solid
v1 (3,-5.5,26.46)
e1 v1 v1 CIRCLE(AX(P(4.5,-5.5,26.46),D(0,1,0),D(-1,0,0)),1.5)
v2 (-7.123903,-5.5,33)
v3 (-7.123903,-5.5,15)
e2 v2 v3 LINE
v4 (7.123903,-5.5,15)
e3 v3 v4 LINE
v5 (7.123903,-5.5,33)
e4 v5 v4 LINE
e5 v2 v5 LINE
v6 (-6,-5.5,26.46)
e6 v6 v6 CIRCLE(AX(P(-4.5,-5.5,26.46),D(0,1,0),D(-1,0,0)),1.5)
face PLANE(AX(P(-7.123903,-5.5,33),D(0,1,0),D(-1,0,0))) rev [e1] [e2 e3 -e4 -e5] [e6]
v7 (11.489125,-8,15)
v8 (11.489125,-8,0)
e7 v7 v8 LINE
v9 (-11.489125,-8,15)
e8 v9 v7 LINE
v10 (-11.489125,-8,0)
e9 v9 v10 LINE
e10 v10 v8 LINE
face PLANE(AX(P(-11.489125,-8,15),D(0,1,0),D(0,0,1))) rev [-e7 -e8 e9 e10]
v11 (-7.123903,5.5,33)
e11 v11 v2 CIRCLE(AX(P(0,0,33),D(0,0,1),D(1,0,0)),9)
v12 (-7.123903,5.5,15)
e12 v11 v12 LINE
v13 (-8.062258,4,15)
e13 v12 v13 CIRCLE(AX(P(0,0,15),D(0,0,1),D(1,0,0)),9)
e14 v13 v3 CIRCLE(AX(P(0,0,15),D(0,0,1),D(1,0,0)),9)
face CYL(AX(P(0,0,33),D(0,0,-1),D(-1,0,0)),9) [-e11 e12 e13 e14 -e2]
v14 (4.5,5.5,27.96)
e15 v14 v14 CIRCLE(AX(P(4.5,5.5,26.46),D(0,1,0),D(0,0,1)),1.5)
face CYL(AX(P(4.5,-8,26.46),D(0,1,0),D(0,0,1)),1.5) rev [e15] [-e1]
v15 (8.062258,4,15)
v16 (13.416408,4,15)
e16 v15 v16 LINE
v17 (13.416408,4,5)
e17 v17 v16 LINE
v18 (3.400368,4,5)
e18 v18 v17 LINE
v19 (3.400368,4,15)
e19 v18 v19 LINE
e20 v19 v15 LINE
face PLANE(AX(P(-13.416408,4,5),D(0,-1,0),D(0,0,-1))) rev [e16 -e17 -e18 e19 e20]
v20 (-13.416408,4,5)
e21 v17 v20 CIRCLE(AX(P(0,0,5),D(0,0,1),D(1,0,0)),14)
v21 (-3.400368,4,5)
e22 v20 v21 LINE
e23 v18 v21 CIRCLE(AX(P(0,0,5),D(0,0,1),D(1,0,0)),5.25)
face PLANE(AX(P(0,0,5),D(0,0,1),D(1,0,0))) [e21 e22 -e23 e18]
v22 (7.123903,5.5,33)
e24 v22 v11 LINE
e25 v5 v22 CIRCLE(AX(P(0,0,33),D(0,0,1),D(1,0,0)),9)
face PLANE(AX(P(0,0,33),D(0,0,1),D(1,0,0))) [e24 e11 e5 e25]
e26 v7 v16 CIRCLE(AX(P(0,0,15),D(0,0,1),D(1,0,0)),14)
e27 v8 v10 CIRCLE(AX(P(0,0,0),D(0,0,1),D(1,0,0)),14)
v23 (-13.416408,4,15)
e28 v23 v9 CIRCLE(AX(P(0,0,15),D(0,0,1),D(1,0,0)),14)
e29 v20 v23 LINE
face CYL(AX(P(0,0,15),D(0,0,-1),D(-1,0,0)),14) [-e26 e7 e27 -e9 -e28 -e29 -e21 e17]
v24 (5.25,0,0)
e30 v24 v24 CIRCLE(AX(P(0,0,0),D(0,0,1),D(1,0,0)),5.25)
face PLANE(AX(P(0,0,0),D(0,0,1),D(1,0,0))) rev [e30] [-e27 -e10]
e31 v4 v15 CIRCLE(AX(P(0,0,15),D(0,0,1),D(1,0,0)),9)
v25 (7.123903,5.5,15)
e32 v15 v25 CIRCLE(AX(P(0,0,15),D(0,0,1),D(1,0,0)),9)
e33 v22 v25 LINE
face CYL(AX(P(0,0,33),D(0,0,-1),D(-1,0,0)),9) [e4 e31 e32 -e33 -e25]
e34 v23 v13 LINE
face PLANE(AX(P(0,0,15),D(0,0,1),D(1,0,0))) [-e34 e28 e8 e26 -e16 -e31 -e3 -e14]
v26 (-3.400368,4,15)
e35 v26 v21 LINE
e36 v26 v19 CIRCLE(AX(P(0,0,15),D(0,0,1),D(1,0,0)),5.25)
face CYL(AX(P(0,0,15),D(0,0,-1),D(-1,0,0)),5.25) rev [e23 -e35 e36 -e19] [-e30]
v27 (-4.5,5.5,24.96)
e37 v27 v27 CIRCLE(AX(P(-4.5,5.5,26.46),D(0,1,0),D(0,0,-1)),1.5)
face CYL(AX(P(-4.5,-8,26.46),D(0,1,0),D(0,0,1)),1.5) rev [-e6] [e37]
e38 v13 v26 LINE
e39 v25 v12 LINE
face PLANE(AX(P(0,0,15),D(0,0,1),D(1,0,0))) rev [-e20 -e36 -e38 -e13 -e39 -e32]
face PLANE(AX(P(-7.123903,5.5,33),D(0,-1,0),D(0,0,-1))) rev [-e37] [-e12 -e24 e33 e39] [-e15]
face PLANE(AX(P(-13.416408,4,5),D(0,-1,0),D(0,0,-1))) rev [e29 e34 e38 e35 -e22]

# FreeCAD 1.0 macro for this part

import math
import FreeCAD as App
import Part
import Sketcher
Q = App.Units.Quantity

doc = App.newDocument("Part")
body = doc.addObject("PartDesign::Body", "Body")

# Sketch on XY plane
sketch1 = body.newObject("Sketcher::SketchObject", "Sketch")
sketch1.AttachmentSupport = (doc.getObject("XY_Plane"), [""])
sketch1.MapMode = "FlatFace"
sketch1.addGeometry(Part.LineSegment(App.Vector(-11, -8, 0), App.Vector(11, -8, 0)), False)
sketch1.addGeometry(Part.ArcOfCircle(Part.Circle(App.Vector(0, 0, 0), App.Vector(0, 0, 1), 14), math.radians(-35), math.radians(215)), False)
sketch1.addGeometry(Part.Circle(App.Vector(0, 0, 0), App.Vector(0, 0, 1), 5), False)
sketch1.addConstraint(Sketcher.Constraint("Coincident", 0, 1, 1, 2))
sketch1.addConstraint(Sketcher.Constraint("Coincident", 1, 1, 0, 2))
sketch1.addConstraint(Sketcher.Constraint("Horizontal", 0))
sketch1.addConstraint(Sketcher.Constraint("Coincident", 1, 3, -1, 1))
sketch1.addConstraint(Sketcher.Constraint("Coincident", 2, 3, -1, 1))
sketch1.addConstraint(Sketcher.Constraint("Radius", 1, Q("14 mm")))
sketch1.addConstraint(Sketcher.Constraint("Diameter", 2, Q("10.5 mm")))
sketch1.addConstraint(Sketcher.Constraint("DistanceY", 0, 1, -1, 1, Q("8 mm")))
pad1 = body.newObject("PartDesign::Pad", "Pad")
pad1.Profile = sketch1
pad1.Length = 15

# Sketch on XY plane
sketch2 = body.newObject("Sketcher::SketchObject", "Sketch001")
sketch2.AttachmentSupport = (doc.getObject("XY_Plane"), [""])
sketch2.MapMode = "FlatFace"
sketch2.AttachmentOffset = App.Placement(App.Vector(0, 0, 5), App.Rotation())
sketch2.addGeometry(Part.LineSegment(App.Vector(-13, 4, 0), App.Vector(13, 4, 0)), False)
sketch2.addGeometry(Part.ArcOfCircle(Part.Circle(App.Vector(0, 0, 0), App.Vector(0, 0, 1), 14), math.radians(17), math.radians(163)), False)
sketch2.addConstraint(Sketcher.Constraint("Coincident", 0, 1, 1, 2))
sketch2.addConstraint(Sketcher.Constraint("Coincident", 1, 1, 0, 2))
sketch2.addConstraint(Sketcher.Constraint("Horizontal", 0))
sketch2.addConstraint(Sketcher.Constraint("Coincident", 1, 3, -1, 1))
sketch2.addConstraint(Sketcher.Constraint("Radius", 1, Q("14 mm")))
sketch2.addConstraint(Sketcher.Constraint("DistanceY", -1, 1, 0, 1, Q("4 mm")))
pocket1 = body.newObject("PartDesign::Pocket", "Pocket")
pocket1.Profile = sketch2
pocket1.Length = 10
pocket1.Reversed = True

# Sketch on XY plane
sketch3 = body.newObject("Sketcher::SketchObject", "Sketch002")
sketch3.AttachmentSupport = (doc.getObject("XY_Plane"), [""])
sketch3.MapMode = "FlatFace"
sketch3.AttachmentOffset = App.Placement(App.Vector(0, 0, 15), App.Rotation())
sketch3.addGeometry(Part.LineSegment(App.Vector(7, 6, 0), App.Vector(-7, 6, 0)), False)
sketch3.addGeometry(Part.ArcOfCircle(Part.Circle(App.Vector(0, 0, 0), App.Vector(0, 0, 1), 9), math.radians(142), math.radians(218)), False)
sketch3.addGeometry(Part.LineSegment(App.Vector(-7, -6, 0), App.Vector(7, -6, 0)), False)
sketch3.addGeometry(Part.ArcOfCircle(Part.Circle(App.Vector(0, 0, 0), App.Vector(0, 0, 1), 9), math.radians(-38), math.radians(38)), False)
sketch3.addConstraint(Sketcher.Constraint("Coincident", 0, 2, 1, 1))
sketch3.addConstraint(Sketcher.Constraint("Coincident", 1, 2, 2, 1))
sketch3.addConstraint(Sketcher.Constraint("Coincident", 2, 2, 3, 1))
sketch3.addConstraint(Sketcher.Constraint("Coincident", 3, 2, 0, 1))
sketch3.addConstraint(Sketcher.Constraint("Horizontal", 0))
sketch3.addConstraint(Sketcher.Constraint("Horizontal", 2))
sketch3.addConstraint(Sketcher.Constraint("Coincident", 1, 3, -1, 1))
sketch3.addConstraint(Sketcher.Constraint("Coincident", 3, 3, -1, 1))
sketch3.addConstraint(Sketcher.Constraint("Equal", 1, 3))
sketch3.addConstraint(Sketcher.Constraint("Vertical", 0, 2, 1, 2))
sketch3.addConstraint(Sketcher.Constraint("Radius", 1, Q("9 mm")))
sketch3.addConstraint(Sketcher.Constraint("DistanceY", 1, 2, 0, 2, Q("11 mm")))
pad2 = body.newObject("PartDesign::Pad", "Pad001")
pad2.Profile = sketch3
pad2.Length = 18

# Sketch on XZ plane
sketch4 = body.newObject("Sketcher::SketchObject", "Sketch003")
sketch4.AttachmentSupport = (doc.getObject("XZ_Plane"), [""])
sketch4.MapMode = "FlatFace"
sketch4.AttachmentOffset = App.Placement(App.Vector(0, 0, -5.5), App.Rotation())
sketch4.addGeometry(Part.Circle(App.Vector(4.5, 26.5, 0), App.Vector(0, 0, 1), 1.5), False)
sketch4.addGeometry(Part.Circle(App.Vector(-4.5, 26.5, 0), App.Vector(0, 0, 1), 1.5), False)
sketch4.addConstraint(Sketcher.Constraint("Equal", 0, 1))
sketch4.addConstraint(Sketcher.Constraint("Symmetric", 0, 3, 1, 3, -2))
sketch4.addConstraint(Sketcher.Constraint("Diameter", 0, Q("3 mm")))
sketch4.addConstraint(Sketcher.Constraint("DistanceX", 1, 3, 0, 3, Q("9 mm")))
sketch4.addConstraint(Sketcher.Constraint("DistanceY", -1, 1, 0, 3, Q("26.46 mm")))
pocket2 = body.newObject("PartDesign::Pocket", "Pocket001")
pocket2.Profile = sketch4
pocket2.Type = "ThroughAll"
pocket2.Reversed = True

doc.recompute()
